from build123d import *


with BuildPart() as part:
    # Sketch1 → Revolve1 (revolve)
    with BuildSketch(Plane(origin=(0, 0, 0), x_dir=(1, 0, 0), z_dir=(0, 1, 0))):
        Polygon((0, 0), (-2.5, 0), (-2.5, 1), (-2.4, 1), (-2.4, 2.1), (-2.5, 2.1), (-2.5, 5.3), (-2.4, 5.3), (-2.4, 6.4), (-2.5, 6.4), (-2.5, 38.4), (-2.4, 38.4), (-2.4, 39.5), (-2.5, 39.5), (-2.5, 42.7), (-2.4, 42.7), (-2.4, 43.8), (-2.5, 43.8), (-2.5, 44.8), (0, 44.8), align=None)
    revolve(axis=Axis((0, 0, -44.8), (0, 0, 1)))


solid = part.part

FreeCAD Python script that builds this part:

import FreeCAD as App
import Part
import Sketcher


def add_polygon(sketch, points):
    """Adds a closed chain of lines whose ends are joined by coincident constraints."""
    first, n = sketch.GeometryCount, len(points)
    for a, b in zip(points, points[1:] + points[:1]):
        sketch.addGeometry(Part.LineSegment(App.Vector(*a, 0), App.Vector(*b, 0)), False)
    for i in range(n):
        sketch.addConstraint(Sketcher.Constraint("Coincident", first + i, 2, first + (i + 1) % n, 1))

doc = App.newDocument("Part")
body = doc.addObject("PartDesign::Body", "Body")

sketch1 = body.newObject("Sketcher::SketchObject", "Sketch")
sketch1.AttachmentSupport = (doc.getObject("XZ_Plane"), [""])
sketch1.MapMode = "FlatFace"
add_polygon(sketch1, [(-2.5, 0), (0, 0), (0, -44.8), (-2.5, -44.8), (-2.5, -43.8), (-2.4, -43.8), (-2.4, -42.7), (-2.5, -42.7), (-2.5, -39.5), (-2.4, -39.5), (-2.4, -38.4), (-2.5, -38.4), (-2.5, -6.4), (-2.4, -6.4), (-2.4, -5.3), (-2.5, -5.3), (-2.5, -2.1), (-2.4, -2.1), (-2.4, -1), (-2.5, -1)])
sketch1.addConstraint([
    Sketcher.Constraint("Horizontal", 0),
    Sketcher.Constraint("Vertical", 1),
    Sketcher.Constraint("Horizontal", 2),
    Sketcher.Constraint("Vertical", 3),
    Sketcher.Constraint("Horizontal", 4),
    Sketcher.Constraint("Vertical", 5),
    Sketcher.Constraint("Horizontal", 6),
    Sketcher.Constraint("Vertical", 7),
    Sketcher.Constraint("Horizontal", 8),
    Sketcher.Constraint("Vertical", 9),
    Sketcher.Constraint("Horizontal", 10),
    Sketcher.Constraint("Vertical", 11),
    Sketcher.Constraint("Horizontal", 12),
    Sketcher.Constraint("Vertical", 13),
    Sketcher.Constraint("Horizontal", 14),
    Sketcher.Constraint("Vertical", 15),
    Sketcher.Constraint("Horizontal", 16),
    Sketcher.Constraint("Vertical", 17),
    Sketcher.Constraint("Horizontal", 18),
    Sketcher.Constraint("Vertical", 19),
    Sketcher.Constraint("Coincident", 0, 2, -1, 1),
    Sketcher.Constraint("Vertical", 3, 2, 6, 2),
    Sketcher.Constraint("Vertical", 5, 2, 8, 2),
    Sketcher.Constraint("Vertical", 7, 2, 10, 2),
    Sketcher.Constraint("Vertical", 9, 2, 12, 2),
    Sketcher.Constraint("Vertical", 11, 2, 14, 2),
    Sketcher.Constraint("Vertical", 13, 2, 16, 2),
    Sketcher.Constraint("Vertical", 15, 2, 18, 2),
    Sketcher.Constraint("Equal", 5, 9),
    Sketcher.Constraint("Equal", 9, 13),
    Sketcher.Constraint("Equal", 7, 15),
    Sketcher.Constraint("Equal", 13, 17),
    Sketcher.Constraint("Equal", 3, 19),
    Sketcher.Constraint("DistanceY", 3, 1, 3, 2, 1.0),
    Sketcher.Constraint("DistanceY", 11, 1, 11, 2, 32.0),
    Sketcher.Constraint("DistanceX", 0, 1, 0, 2, 2.5),
    Sketcher.Constraint("DistanceX", 4, 1, 4, 2, 0.1),
    Sketcher.Constraint("DistanceY", 1, 2, 1, 1, 44.8),
    Sketcher.Constraint("DistanceY", 5, 1, 5, 2, 1.1),
])
revolution = body.newObject("PartDesign::Revolution", "Revolution")
revolution.Profile = sketch1
revolution.ReferenceAxis = (sketch1, ["V_Axis"])
revolution.Angle = 360

doc.recompute()
